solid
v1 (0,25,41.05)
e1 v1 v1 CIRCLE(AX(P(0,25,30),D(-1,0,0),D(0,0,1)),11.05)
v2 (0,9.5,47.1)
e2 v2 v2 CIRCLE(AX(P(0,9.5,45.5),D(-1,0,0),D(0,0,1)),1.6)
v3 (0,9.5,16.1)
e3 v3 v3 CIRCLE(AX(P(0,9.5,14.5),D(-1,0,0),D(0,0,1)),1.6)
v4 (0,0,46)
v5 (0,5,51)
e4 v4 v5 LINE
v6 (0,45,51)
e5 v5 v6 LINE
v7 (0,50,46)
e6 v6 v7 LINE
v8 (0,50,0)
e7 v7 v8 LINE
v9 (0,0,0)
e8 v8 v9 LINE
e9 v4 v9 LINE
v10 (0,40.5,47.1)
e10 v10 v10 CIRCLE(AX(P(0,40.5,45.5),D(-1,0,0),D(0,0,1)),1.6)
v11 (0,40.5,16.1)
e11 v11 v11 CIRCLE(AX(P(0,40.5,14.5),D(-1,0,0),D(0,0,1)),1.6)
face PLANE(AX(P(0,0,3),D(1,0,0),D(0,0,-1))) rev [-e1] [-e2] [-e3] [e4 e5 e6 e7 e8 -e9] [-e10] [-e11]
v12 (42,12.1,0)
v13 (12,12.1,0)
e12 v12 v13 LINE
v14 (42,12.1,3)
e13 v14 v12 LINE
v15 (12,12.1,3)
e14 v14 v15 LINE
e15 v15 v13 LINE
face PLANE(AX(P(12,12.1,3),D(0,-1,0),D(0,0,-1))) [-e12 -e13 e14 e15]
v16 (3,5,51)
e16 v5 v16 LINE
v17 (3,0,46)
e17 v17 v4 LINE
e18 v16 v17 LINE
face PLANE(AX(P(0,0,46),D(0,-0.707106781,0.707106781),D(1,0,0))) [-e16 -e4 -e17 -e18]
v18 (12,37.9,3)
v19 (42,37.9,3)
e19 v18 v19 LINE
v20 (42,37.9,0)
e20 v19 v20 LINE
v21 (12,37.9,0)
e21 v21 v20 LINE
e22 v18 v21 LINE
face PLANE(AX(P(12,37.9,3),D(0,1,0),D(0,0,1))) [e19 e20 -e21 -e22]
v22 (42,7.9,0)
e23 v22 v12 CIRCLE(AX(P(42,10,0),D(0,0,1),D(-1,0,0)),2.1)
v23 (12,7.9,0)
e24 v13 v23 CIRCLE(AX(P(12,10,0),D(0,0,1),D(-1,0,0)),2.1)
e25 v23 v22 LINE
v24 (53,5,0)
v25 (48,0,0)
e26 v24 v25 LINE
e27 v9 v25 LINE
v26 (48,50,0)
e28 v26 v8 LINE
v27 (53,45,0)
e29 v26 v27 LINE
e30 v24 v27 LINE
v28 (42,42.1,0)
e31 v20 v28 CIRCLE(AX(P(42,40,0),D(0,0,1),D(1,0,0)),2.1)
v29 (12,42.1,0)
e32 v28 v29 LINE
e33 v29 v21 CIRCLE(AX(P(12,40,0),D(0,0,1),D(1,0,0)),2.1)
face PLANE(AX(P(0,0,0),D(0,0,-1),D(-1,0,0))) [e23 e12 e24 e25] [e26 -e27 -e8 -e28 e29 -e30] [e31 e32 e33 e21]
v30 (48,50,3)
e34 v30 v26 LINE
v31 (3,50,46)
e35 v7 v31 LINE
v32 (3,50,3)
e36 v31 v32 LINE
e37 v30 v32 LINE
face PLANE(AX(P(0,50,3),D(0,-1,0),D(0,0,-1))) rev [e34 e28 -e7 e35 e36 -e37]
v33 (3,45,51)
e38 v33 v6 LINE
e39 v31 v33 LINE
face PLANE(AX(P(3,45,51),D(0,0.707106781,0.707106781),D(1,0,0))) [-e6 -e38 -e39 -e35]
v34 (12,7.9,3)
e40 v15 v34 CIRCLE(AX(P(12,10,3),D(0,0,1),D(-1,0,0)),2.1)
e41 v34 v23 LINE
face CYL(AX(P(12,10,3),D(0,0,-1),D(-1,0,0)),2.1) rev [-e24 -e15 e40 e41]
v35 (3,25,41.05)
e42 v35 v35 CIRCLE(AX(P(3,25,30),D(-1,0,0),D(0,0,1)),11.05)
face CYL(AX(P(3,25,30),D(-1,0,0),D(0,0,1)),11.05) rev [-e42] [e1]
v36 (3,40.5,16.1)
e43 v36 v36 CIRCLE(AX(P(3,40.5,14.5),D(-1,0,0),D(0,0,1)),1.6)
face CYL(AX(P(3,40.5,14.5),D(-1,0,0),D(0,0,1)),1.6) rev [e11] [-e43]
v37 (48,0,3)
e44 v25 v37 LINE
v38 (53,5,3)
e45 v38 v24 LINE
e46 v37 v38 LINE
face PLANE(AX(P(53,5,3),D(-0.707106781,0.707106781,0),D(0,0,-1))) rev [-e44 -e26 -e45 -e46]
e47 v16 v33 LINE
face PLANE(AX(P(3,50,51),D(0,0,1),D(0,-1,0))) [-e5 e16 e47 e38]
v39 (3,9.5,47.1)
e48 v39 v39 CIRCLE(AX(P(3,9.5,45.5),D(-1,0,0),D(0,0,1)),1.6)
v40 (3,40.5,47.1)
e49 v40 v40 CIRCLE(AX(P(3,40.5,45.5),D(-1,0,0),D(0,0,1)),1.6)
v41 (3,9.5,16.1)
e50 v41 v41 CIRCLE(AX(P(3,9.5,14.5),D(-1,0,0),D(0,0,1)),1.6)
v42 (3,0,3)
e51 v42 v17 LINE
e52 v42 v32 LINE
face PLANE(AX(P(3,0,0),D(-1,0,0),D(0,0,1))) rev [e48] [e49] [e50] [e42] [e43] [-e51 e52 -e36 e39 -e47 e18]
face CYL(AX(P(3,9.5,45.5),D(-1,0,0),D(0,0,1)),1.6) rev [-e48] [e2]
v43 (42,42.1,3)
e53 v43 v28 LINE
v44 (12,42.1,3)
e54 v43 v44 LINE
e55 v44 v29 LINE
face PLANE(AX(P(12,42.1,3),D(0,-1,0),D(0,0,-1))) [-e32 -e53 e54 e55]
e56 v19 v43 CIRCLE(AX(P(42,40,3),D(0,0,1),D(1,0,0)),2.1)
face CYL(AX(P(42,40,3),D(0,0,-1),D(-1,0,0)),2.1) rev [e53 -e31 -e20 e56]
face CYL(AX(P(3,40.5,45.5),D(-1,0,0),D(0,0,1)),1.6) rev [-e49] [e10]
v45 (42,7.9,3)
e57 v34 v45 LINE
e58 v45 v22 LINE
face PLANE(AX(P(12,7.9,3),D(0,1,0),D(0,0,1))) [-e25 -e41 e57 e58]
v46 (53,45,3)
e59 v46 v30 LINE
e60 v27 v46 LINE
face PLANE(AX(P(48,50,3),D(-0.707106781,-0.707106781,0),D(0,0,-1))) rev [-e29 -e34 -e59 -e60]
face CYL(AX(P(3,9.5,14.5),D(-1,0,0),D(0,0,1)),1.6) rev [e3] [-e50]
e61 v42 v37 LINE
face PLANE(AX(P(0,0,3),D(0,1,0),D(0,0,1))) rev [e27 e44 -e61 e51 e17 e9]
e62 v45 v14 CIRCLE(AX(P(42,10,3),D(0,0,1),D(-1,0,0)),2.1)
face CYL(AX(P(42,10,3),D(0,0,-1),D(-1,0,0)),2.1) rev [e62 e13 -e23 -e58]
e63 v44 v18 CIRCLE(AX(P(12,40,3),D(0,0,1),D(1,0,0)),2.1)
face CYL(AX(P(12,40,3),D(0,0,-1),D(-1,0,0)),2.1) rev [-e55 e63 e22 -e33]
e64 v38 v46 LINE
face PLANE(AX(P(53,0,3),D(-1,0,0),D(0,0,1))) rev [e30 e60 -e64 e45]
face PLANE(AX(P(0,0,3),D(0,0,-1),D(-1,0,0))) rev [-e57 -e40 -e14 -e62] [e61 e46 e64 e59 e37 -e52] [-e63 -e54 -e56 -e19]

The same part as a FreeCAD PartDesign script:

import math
import FreeCAD as App
import Part
import Sketcher
from FreeCAD import Vector
Q = App.Units.Quantity


def edges_at(feature, points):
    """Names of the edges that pass closest to the given points."""
    edges = feature.Shape.Edges
    near = lambda p: min(range(len(edges)), key=lambda i: edges[i].distToShape(Part.Vertex(*p))[0])
    return sorted({f"Edge{near(p) + 1}" for p in points})


def add_polygon(sketch, points):
    """Adds a closed chain of lines whose ends are joined by coincident constraints."""
    first, n = sketch.GeometryCount, len(points)
    for a, b in zip(points, points[1:] + points[:1]):
        sketch.addGeometry(Part.LineSegment(App.Vector(*a, 0), App.Vector(*b, 0)), False)
    for i in range(n):
        sketch.addConstraint(Sketcher.Constraint("Coincident", first + i, 2, first + (i + 1) % n, 1))

doc = App.newDocument("Part")
body = doc.addObject("PartDesign::Body", "Body")

# Sketch on XY plane
sketch1 = doc.addObject("Sketcher::SketchObject", "Sketch")
body.addObject(sketch1)
sketch1.AttachmentSupport = (doc.XY_Plane, [""])
sketch1.MapMode = "FlatFace"
add_polygon(sketch1, [(0, 50), (0, 0), (53, 0), (53, 50)])  # lines 0-3
sketch1.addGeometry(Part.LineSegment(Vector(42, 7.9, 0), Vector(12, 7.9, 0)), False)  # 4
sketch1.addGeometry(Part.ArcOfCircle(Part.Circle(Vector(12, 10, 0), Vector(0, 0, 1), 2.1), math.radians(90), math.radians(270)), False)  # 5
sketch1.addGeometry(Part.LineSegment(Vector(12, 12.1, 0), Vector(42, 12.1, 0)), False)  # 6
sketch1.addGeometry(Part.ArcOfCircle(Part.Circle(Vector(42, 10, 0), Vector(0, 0, 1), 2.1), math.radians(-90), math.radians(90)), False)  # 7
sketch1.addGeometry(Part.ArcOfCircle(Part.Circle(Vector(12, 40, 0), Vector(0, 0, 1), 2.1), math.radians(90), math.radians(270)), False)  # 8
sketch1.addGeometry(Part.LineSegment(Vector(12, 42.1, 0), Vector(42, 42.1, 0)), False)  # 9
sketch1.addGeometry(Part.ArcOfCircle(Part.Circle(Vector(42, 40, 0), Vector(0, 0, 1), 2.1), math.radians(-90), math.radians(90)), False)  # 10
sketch1.addGeometry(Part.LineSegment(Vector(42, 37.9, 0), Vector(12, 37.9, 0)), False)  # 11
sketch1.addConstraint([
    Sketcher.Constraint("Tangent", 4, 2, 5, 2),
    Sketcher.Constraint("Tangent", 5, 1, 6, 1),
    Sketcher.Constraint("Tangent", 6, 2, 7, 2),
    Sketcher.Constraint("Tangent", 7, 1, 4, 1),
    Sketcher.Constraint("Tangent", 8, 1, 9, 1),
    Sketcher.Constraint("Tangent", 9, 2, 10, 2),
    Sketcher.Constraint("Tangent", 10, 1, 11, 1),
    Sketcher.Constraint("Tangent", 11, 2, 8, 2),
    Sketcher.Constraint("Vertical", 0),
    Sketcher.Constraint("Horizontal", 1),
    Sketcher.Constraint("Vertical", 2),
    Sketcher.Constraint("Horizontal", 3),
    Sketcher.Constraint("Horizontal", 4),
    Sketcher.Constraint("Horizontal", 6),
    Sketcher.Constraint("Horizontal", 9),
    Sketcher.Constraint("Horizontal", 11),
    Sketcher.Constraint("Coincident", 0, 2, -1, 1),
    Sketcher.Constraint("Equal", 7, 8),
    Sketcher.Constraint("Vertical", 5, 3, 8, 3),
    Sketcher.Constraint("Vertical", 7, 3, 10, 3),
    Sketcher.Constraint("Radius", 5, Q("2.1 mm")),
    Sketcher.Constraint("DistanceX", 1, 1, 1, 2, Q("53 mm")),
    Sketcher.Constraint("DistanceX", 4, 2, 4, 1, Q("30 mm")),
    Sketcher.Constraint("DistanceY", 0, 2, 0, 1, Q("50 mm")),
    Sketcher.Constraint("DistanceX", -1, 1, 5, 3, Q("12 mm")),
    Sketcher.Constraint("DistanceY", -1, 1, 5, 3, Q("10 mm")),
    Sketcher.Constraint("DistanceY", -1, 1, 8, 3, Q("40 mm")),
])
pad1 = doc.addObject("PartDesign::Pad", "Pad")
body.addObject(pad1)
pad1.Profile = sketch1
pad1.Length = 3

# Sketch on YZ plane
sketch2 = doc.addObject("Sketcher::SketchObject", "Sketch001")
body.addObject(sketch2)
sketch2.AttachmentSupport = (doc.YZ_Plane, [""])
sketch2.MapMode = "FlatFace"
add_polygon(sketch2, [(50, 0), (0, 0), (0, 51), (50, 51)])  # lines 0-3
sketch2.addGeometry(Part.Circle(Vector(9.5, 14.5, 0), Vector(0, 0, 1), 1.6), False)  # 4
sketch2.addGeometry(Part.Circle(Vector(9.5, 45.5, 0), Vector(0, 0, 1), 1.6), False)  # 5
sketch2.addGeometry(Part.Circle(Vector(40.5, 14.5, 0), Vector(0, 0, 1), 1.6), False)  # 6
sketch2.addGeometry(Part.Circle(Vector(25, 30, 0), Vector(0, 0, 1), 11.1), False)  # 7
sketch2.addGeometry(Part.Circle(Vector(40.5, 45.5, 0), Vector(0, 0, 1), 1.6), False)  # 8
sketch2.addConstraint([
    Sketcher.Constraint("Horizontal", 0),
    Sketcher.Constraint("Vertical", 1),
    Sketcher.Constraint("Horizontal", 2),
    Sketcher.Constraint("Vertical", 3),
    Sketcher.Constraint("Coincident", 0, 2, -1, 1),
    Sketcher.Constraint("Equal", 4, 5),
    Sketcher.Constraint("Equal", 5, 6),
    Sketcher.Constraint("Equal", 6, 8),
    Sketcher.Constraint("Horizontal", 4, 3, 6, 3),
    Sketcher.Constraint("Horizontal", 5, 3, 8, 3),
    Sketcher.Constraint("Vertical", 4, 3, 5, 3),
    Sketcher.Constraint("Vertical", 6, 3, 8, 3),
    Sketcher.Constraint("Diameter", 4, Q("3.2 mm")),
    Sketcher.Constraint("Diameter", 7, Q("22.1 mm")),
    Sketcher.Constraint("DistanceX", 0, 2, 0, 1, Q("50 mm")),
    Sketcher.Constraint("DistanceY", 1, 1, 1, 2, Q("51 mm")),
    Sketcher.Constraint("DistanceX", -1, 1, 7, 3, Q("25 mm")),
    Sketcher.Constraint("DistanceY", -1, 1, 7, 3, Q("30 mm")),
    Sketcher.Constraint("DistanceY", 4, 3, 5, 3, Q("31 mm")),
    Sketcher.Constraint("DistanceX", 4, 3, 6, 3, Q("31 mm")),
    Sketcher.Constraint("DistanceX", -1, 1, 4, 3, Q("9.5 mm")),
    Sketcher.Constraint("DistanceY", -1, 1, 4, 3, Q("14.5 mm")),
])
pad2 = doc.addObject("PartDesign::Pad", "Pad001")
body.addObject(pad2)
pad2.Profile = sketch2
pad2.Length = 3
doc.recompute()

chamfer = doc.addObject("PartDesign::Chamfer", "Chamfer")
body.addObject(chamfer)
chamfer.Base = (pad2, edges_at(pad2, [
    (1.5, 0, 51),
    (1.5, 50, 51),
    (53, 50, 1.5),
    (53, 0, 1.5),
]))
chamfer.Size = 5

doc.recompute()
